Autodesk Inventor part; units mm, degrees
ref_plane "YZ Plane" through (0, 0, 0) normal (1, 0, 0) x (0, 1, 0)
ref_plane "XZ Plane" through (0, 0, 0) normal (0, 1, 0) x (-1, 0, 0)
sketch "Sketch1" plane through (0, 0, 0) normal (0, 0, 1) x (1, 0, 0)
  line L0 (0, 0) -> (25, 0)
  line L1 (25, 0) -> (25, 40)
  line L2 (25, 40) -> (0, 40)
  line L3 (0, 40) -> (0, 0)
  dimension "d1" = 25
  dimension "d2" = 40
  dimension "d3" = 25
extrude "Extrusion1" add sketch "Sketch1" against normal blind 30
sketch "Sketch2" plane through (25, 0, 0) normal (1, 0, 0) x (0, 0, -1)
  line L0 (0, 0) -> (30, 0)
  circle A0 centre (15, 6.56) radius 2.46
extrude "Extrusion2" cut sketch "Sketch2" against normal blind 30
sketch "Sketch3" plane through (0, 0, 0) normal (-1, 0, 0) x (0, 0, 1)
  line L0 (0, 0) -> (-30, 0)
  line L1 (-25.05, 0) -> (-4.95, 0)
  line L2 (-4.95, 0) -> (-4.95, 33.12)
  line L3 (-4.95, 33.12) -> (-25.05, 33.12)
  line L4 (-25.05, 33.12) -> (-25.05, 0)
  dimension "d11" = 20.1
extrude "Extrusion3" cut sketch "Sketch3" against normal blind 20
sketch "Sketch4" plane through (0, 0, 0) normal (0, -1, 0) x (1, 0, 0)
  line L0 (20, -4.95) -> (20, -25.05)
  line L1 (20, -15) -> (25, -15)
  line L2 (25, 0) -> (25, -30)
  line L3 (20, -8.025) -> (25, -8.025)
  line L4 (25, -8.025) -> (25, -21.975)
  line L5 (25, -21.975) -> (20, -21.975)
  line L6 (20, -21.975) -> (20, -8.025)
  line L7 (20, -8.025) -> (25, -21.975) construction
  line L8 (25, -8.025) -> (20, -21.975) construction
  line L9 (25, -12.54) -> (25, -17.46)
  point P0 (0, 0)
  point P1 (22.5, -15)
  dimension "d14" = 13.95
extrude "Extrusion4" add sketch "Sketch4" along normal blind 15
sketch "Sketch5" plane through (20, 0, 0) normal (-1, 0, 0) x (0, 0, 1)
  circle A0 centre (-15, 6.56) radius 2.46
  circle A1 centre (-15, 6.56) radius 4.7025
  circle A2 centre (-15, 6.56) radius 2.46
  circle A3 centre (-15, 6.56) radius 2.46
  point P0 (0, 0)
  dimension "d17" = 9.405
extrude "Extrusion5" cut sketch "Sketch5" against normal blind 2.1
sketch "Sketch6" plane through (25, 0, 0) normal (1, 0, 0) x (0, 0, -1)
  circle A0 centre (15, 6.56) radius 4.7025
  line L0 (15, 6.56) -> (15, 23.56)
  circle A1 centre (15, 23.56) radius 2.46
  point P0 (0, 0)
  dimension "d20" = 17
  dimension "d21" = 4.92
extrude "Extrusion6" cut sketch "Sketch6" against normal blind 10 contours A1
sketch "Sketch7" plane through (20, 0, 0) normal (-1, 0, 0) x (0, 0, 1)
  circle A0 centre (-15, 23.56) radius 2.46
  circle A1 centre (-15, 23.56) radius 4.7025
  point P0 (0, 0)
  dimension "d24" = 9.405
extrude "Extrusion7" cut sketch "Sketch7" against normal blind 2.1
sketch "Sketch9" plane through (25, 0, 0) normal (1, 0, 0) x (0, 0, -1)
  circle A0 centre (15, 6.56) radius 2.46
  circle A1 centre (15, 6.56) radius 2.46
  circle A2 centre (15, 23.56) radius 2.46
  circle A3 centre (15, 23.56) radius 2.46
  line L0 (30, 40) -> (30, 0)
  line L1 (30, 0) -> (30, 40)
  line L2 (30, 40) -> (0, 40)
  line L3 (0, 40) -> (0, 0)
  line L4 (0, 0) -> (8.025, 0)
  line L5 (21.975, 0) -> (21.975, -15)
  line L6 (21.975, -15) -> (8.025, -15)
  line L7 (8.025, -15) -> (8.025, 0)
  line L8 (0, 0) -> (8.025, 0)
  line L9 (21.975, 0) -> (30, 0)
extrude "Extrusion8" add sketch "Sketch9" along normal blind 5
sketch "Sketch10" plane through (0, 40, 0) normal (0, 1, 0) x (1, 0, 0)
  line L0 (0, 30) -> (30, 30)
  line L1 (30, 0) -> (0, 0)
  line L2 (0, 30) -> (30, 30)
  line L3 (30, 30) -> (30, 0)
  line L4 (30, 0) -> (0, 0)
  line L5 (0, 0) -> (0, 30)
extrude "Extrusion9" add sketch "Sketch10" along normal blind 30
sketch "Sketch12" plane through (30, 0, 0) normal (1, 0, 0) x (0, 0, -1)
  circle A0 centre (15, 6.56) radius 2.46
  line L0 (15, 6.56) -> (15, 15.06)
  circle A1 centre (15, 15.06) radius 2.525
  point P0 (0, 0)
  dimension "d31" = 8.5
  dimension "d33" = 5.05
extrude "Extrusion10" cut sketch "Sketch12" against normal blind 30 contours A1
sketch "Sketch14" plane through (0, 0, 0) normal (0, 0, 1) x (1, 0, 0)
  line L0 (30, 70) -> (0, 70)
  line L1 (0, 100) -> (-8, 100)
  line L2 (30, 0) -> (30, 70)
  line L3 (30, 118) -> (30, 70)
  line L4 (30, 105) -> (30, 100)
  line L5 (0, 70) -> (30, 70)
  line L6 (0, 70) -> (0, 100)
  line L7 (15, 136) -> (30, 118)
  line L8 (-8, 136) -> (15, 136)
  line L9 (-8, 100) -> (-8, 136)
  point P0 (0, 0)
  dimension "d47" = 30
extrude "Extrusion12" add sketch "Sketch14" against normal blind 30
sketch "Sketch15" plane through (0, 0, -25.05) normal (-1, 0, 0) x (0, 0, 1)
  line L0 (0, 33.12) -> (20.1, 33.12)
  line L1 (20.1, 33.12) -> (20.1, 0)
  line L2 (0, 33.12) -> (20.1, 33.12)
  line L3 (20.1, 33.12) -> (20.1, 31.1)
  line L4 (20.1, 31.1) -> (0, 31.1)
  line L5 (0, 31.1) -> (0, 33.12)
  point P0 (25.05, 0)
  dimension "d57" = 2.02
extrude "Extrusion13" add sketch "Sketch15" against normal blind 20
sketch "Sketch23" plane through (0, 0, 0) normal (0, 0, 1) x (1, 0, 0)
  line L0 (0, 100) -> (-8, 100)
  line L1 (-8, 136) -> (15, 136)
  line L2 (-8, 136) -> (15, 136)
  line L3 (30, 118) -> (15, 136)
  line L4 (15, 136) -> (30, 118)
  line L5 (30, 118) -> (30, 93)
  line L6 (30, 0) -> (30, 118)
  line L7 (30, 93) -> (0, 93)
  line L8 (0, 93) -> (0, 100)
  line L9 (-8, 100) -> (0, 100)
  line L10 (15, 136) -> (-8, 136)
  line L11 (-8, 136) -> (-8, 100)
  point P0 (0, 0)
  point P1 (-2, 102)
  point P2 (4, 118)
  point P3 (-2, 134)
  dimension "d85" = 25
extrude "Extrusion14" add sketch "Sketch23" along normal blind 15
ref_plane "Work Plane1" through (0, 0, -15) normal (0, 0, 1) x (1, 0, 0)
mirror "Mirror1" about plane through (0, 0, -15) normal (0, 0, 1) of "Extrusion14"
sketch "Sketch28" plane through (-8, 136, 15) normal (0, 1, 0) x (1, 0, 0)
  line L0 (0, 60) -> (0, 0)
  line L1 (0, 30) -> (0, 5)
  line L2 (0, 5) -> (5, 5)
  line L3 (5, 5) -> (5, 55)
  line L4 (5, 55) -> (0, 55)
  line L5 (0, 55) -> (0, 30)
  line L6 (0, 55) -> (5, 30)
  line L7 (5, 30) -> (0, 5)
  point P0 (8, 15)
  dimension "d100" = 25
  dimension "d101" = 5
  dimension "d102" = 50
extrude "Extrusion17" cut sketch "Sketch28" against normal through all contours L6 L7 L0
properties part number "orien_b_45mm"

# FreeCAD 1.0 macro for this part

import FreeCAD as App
import Part
import Sketcher

V = App.Vector
Q = App.Units.Quantity

doc = App.newDocument("Part")
body = doc.addObject("PartDesign::Body", "Body")

# Sketch on XY plane
sketch1 = body.newObject("Sketcher::SketchObject", "Sketch")
sketch1.AttachmentSupport = (doc.getObject("XY_Plane"), [""])
sketch1.MapMode = "FlatFace"
sketch1.addGeometry(Part.LineSegment(V(0, 40, 0), V(0, 0, 0)), False)
sketch1.addGeometry(Part.LineSegment(V(0, 0, 0), V(25, 0, 0)), False)
sketch1.addGeometry(Part.LineSegment(V(25, 0, 0), V(25, 40, 0)), False)
sketch1.addGeometry(Part.LineSegment(V(25, 40, 0), V(0, 40, 0)), False)
sketch1.addConstraint(Sketcher.Constraint("Coincident", 0, 2, 1, 1))
sketch1.addConstraint(Sketcher.Constraint("Coincident", 1, 2, 2, 1))
sketch1.addConstraint(Sketcher.Constraint("Coincident", 2, 2, 3, 1))
sketch1.addConstraint(Sketcher.Constraint("Coincident", 3, 2, 0, 1))
sketch1.addConstraint(Sketcher.Constraint("Vertical", 0))
sketch1.addConstraint(Sketcher.Constraint("Horizontal", 1))
sketch1.addConstraint(Sketcher.Constraint("Vertical", 2))
sketch1.addConstraint(Sketcher.Constraint("Horizontal", 3))
sketch1.addConstraint(Sketcher.Constraint("Coincident", 0, 2, -1, 1))
sketch1.addConstraint(Sketcher.Constraint("DistanceX", 1, 1, 1, 2, Q("25 mm")))
sketch1.addConstraint(Sketcher.Constraint("DistanceY", 0, 2, 0, 1, Q("40 mm")))
pad1 = body.newObject("PartDesign::Pad", "Pad")
pad1.Profile = sketch1
pad1.Length = 30
pad1.Reversed = True

# Sketch on YZ plane
sketch2 = body.newObject("Sketcher::SketchObject", "Sketch001")
sketch2.AttachmentSupport = (doc.getObject("YZ_Plane"), [""])
sketch2.MapMode = "FlatFace"
sketch2.AttachmentOffset = App.Placement(V(0, 0, 25), App.Rotation())
sketch2.addGeometry(Part.Circle(V(6.6, -15, 0), V(0, 0, 1), 2.5), False)
sketch2.addConstraint(Sketcher.Constraint("Diameter", 0, Q("4.92 mm")))
sketch2.addConstraint(Sketcher.Constraint("DistanceY", 0, 3, -1, 1, Q("15 mm")))
sketch2.addConstraint(Sketcher.Constraint("DistanceX", -1, 1, 0, 3, Q("6.56 mm")))
pocket1 = body.newObject("PartDesign::Pocket", "Pocket")
pocket1.Profile = sketch2
pocket1.Length = 30

# Sketch on YZ plane
sketch3 = body.newObject("Sketcher::SketchObject", "Sketch002")
sketch3.AttachmentSupport = (doc.getObject("YZ_Plane"), [""])
sketch3.MapMode = "FlatFace"
sketch3.addGeometry(Part.LineSegment(V(0, -25, 0), V(0, -5, 0)), False)
sketch3.addGeometry(Part.LineSegment(V(0, -5, 0), V(33, -5, 0)), False)
sketch3.addGeometry(Part.LineSegment(V(33, -5, 0), V(33, -25, 0)), False)
sketch3.addGeometry(Part.LineSegment(V(33, -25, 0), V(0, -25, 0)), False)
sketch3.addConstraint(Sketcher.Constraint("Coincident", 0, 2, 1, 1))
sketch3.addConstraint(Sketcher.Constraint("Coincident", 1, 2, 2, 1))
sketch3.addConstraint(Sketcher.Constraint("Coincident", 2, 2, 3, 1))
sketch3.addConstraint(Sketcher.Constraint("Coincident", 3, 2, 0, 1))
sketch3.addConstraint(Sketcher.Constraint("Vertical", 0))
sketch3.addConstraint(Sketcher.Constraint("Horizontal", 1))
sketch3.addConstraint(Sketcher.Constraint("Vertical", 2))
sketch3.addConstraint(Sketcher.Constraint("Horizontal", 3))
sketch3.addConstraint(Sketcher.Constraint("PointOnObject", 0, 2, -2))
sketch3.addConstraint(Sketcher.Constraint("DistanceY", 0, 1, 0, 2, Q("20.1 mm")))
sketch3.addConstraint(Sketcher.Constraint("DistanceX", 1, 1, 1, 2, Q("33.12 mm")))
sketch3.addConstraint(Sketcher.Constraint("DistanceY", 0, 2, -1, 1, Q("4.95 mm")))
pocket2 = body.newObject("PartDesign::Pocket", "Pocket001")
pocket2.Profile = sketch3
pocket2.Length = 20
pocket2.Reversed = True

# Sketch on XZ plane
sketch4 = body.newObject("Sketcher::SketchObject", "Sketch003")
sketch4.AttachmentSupport = (doc.getObject("XZ_Plane"), [""])
sketch4.MapMode = "FlatFace"
sketch4.addGeometry(Part.LineSegment(V(25, -8, 0), V(20, -8, 0)), False)
sketch4.addGeometry(Part.LineSegment(V(20, -8, 0), V(20, -22, 0)), False)
sketch4.addGeometry(Part.LineSegment(V(20, -22, 0), V(25, -22, 0)), False)
sketch4.addGeometry(Part.LineSegment(V(25, -22, 0), V(25, -8, 0)), False)
sketch4.addConstraint(Sketcher.Constraint("Coincident", 0, 2, 1, 1))
sketch4.addConstraint(Sketcher.Constraint("Coincident", 1, 2, 2, 1))
sketch4.addConstraint(Sketcher.Constraint("Coincident", 2, 2, 3, 1))
sketch4.addConstraint(Sketcher.Constraint("Coincident", 3, 2, 0, 1))
sketch4.addConstraint(Sketcher.Constraint("Horizontal", 0))
sketch4.addConstraint(Sketcher.Constraint("Vertical", 1))
sketch4.addConstraint(Sketcher.Constraint("Horizontal", 2))
sketch4.addConstraint(Sketcher.Constraint("Vertical", 3))
sketch4.addConstraint(Sketcher.Constraint("DistanceY", 1, 2, 1, 1, Q("13.95 mm")))
sketch4.addConstraint(Sketcher.Constraint("DistanceX", 0, 2, 0, 1, Q("5 mm")))
sketch4.addConstraint(Sketcher.Constraint("DistanceX", -1, 1, 0, 2, Q("20 mm")))
sketch4.addConstraint(Sketcher.Constraint("DistanceY", 0, 2, -1, 1, Q("8.025 mm")))
pad2 = body.newObject("PartDesign::Pad", "Pad001")
pad2.Profile = sketch4
pad2.Length = 15

# Sketch on YZ plane
sketch5 = body.newObject("Sketcher::SketchObject", "Sketch004")
sketch5.AttachmentSupport = (doc.getObject("YZ_Plane"), [""])
sketch5.MapMode = "FlatFace"
sketch5.AttachmentOffset = App.Placement(V(0, 0, 20), App.Rotation())
sketch5.addGeometry(Part.Circle(V(6.6, -15, 0), V(0, 0, 1), 4.7), False)
sketch5.addGeometry(Part.Circle(V(6.6, -15, 0), V(0, 0, 1), 2.5), False)
sketch5.addConstraint(Sketcher.Constraint("Coincident", 1, 3, 0, 3))
sketch5.addConstraint(Sketcher.Constraint("Diameter", 0, Q("9.405 mm")))
sketch5.addConstraint(Sketcher.Constraint("Diameter", 1, Q("4.92 mm")))
sketch5.addConstraint(Sketcher.Constraint("DistanceY", 0, 3, -1, 1, Q("15 mm")))
sketch5.addConstraint(Sketcher.Constraint("DistanceX", -1, 1, 0, 3, Q("6.56 mm")))
pocket3 = body.newObject("PartDesign::Pocket", "Pocket002")
pocket3.Profile = sketch5
pocket3.Length = 2.1
pocket3.Reversed = True

# Sketch on YZ plane
sketch6 = body.newObject("Sketcher::SketchObject", "Sketch005")
sketch6.AttachmentSupport = (doc.getObject("YZ_Plane"), [""])
sketch6.MapMode = "FlatFace"
sketch6.AttachmentOffset = App.Placement(V(0, 0, 25), App.Rotation())
sketch6.addGeometry(Part.Circle(V(23.6, -15, 0), V(0, 0, 1), 2.5), False)
sketch6.addConstraint(Sketcher.Constraint("Diameter", 0, Q("4.92 mm")))
sketch6.addConstraint(Sketcher.Constraint("DistanceY", 0, 3, -1, 1, Q("15 mm")))
sketch6.addConstraint(Sketcher.Constraint("DistanceX", -1, 1, 0, 3, Q("23.56 mm")))
pocket4 = body.newObject("PartDesign::Pocket", "Pocket003")
pocket4.Profile = sketch6
pocket4.Length = 10

# Sketch on YZ plane
sketch7 = body.newObject("Sketcher::SketchObject", "Sketch006")
sketch7.AttachmentSupport = (doc.getObject("YZ_Plane"), [""])
sketch7.MapMode = "FlatFace"
sketch7.AttachmentOffset = App.Placement(V(0, 0, 20), App.Rotation())
sketch7.addGeometry(Part.Circle(V(23.6, -15, 0), V(0, 0, 1), 4.7), False)
sketch7.addGeometry(Part.Circle(V(23.6, -15, 0), V(0, 0, 1), 2.5), False)
sketch7.addConstraint(Sketcher.Constraint("Coincident", 1, 3, 0, 3))
sketch7.addConstraint(Sketcher.Constraint("Diameter", 0, Q("9.405 mm")))
sketch7.addConstraint(Sketcher.Constraint("Diameter", 1, Q("4.92 mm")))
sketch7.addConstraint(Sketcher.Constraint("DistanceY", 0, 3, -1, 1, Q("15 mm")))
sketch7.addConstraint(Sketcher.Constraint("DistanceX", -1, 1, 0, 3, Q("23.56 mm")))
pocket5 = body.newObject("PartDesign::Pocket", "Pocket004")
pocket5.Profile = sketch7
pocket5.Length = 2.1
pocket5.Reversed = True

# Sketch on YZ plane
sketch8 = body.newObject("Sketcher::SketchObject", "Sketch007")
sketch8.AttachmentSupport = (doc.getObject("YZ_Plane"), [""])
sketch8.MapMode = "FlatFace"
sketch8.AttachmentOffset = App.Placement(V(0, 0, 25), App.Rotation())
sketch8.addGeometry(Part.LineSegment(V(0, -30, 0), V(40, -30, 0)), False)
sketch8.addGeometry(Part.LineSegment(V(40, -30, 0), V(40, 0, 0)), False)
sketch8.addGeometry(Part.LineSegment(V(40, 0, 0), V(0, 0, 0)), False)
sketch8.addGeometry(Part.LineSegment(V(0, 0, 0), V(0, -8, 0)), False)
sketch8.addGeometry(Part.LineSegment(V(0, -8, 0), V(-15, -8, 0)), False)
sketch8.addGeometry(Part.LineSegment(V(-15, -8, 0), V(-15, -22, 0)), False)
sketch8.addGeometry(Part.LineSegment(V(-15, -22, 0), V(0, -22, 0)), False)
sketch8.addGeometry(Part.LineSegment(V(0, -22, 0), V(0, -30, 0)), False)
sketch8.addGeometry(Part.Circle(V(6.6, -15, 0), V(0, 0, 1), 2.5), False)
sketch8.addGeometry(Part.Circle(V(23.6, -15, 0), V(0, 0, 1), 2.5), False)
sketch8.addConstraint(Sketcher.Constraint("Coincident", 0, 2, 1, 1))
sketch8.addConstraint(Sketcher.Constraint("Coincident", 1, 2, 2, 1))
sketch8.addConstraint(Sketcher.Constraint("Coincident", 2, 2, 3, 1))
sketch8.addConstraint(Sketcher.Constraint("Coincident", 3, 2, 4, 1))
sketch8.addConstraint(Sketcher.Constraint("Coincident", 4, 2, 5, 1))
sketch8.addConstraint(Sketcher.Constraint("Coincident", 5, 2, 6, 1))
sketch8.addConstraint(Sketcher.Constraint("Coincident", 6, 2, 7, 1))
sketch8.addConstraint(Sketcher.Constraint("Coincident", 7, 2, 0, 1))
sketch8.addConstraint(Sketcher.Constraint("Horizontal", 0))
sketch8.addConstraint(Sketcher.Constraint("Vertical", 1))
sketch8.addConstraint(Sketcher.Constraint("Horizontal", 2))
sketch8.addConstraint(Sketcher.Constraint("Vertical", 3))
sketch8.addConstraint(Sketcher.Constraint("Horizontal", 4))
sketch8.addConstraint(Sketcher.Constraint("Vertical", 5))
sketch8.addConstraint(Sketcher.Constraint("Horizontal", 6))
sketch8.addConstraint(Sketcher.Constraint("Vertical", 7))
sketch8.addConstraint(Sketcher.Constraint("Coincident", 2, 2, -1, 1))
sketch8.addConstraint(Sketcher.Constraint("Equal", 8, 9))
sketch8.addConstraint(Sketcher.Constraint("PointOnObject", 6, 2, -2))
sketch8.addConstraint(Sketcher.Constraint("Horizontal", 8, 3, 9, 3))
sketch8.addConstraint(Sketcher.Constraint("Equal", 3, 7))
sketch8.addConstraint(Sketcher.Constraint("Diameter", 8, Q("4.92 mm")))
sketch8.addConstraint(Sketcher.Constraint("DistanceX", 0, 1, 0, 2, Q("40 mm")))
sketch8.addConstraint(Sketcher.Constraint("DistanceX", 4, 2, 4, 1, Q("15 mm")))
sketch8.addConstraint(Sketcher.Constraint("DistanceY", 1, 1, 1, 2, Q("30 mm")))
sketch8.addConstraint(Sketcher.Constraint("DistanceY", 8, 3, -1, 1, Q("15 mm")))
sketch8.addConstraint(Sketcher.Constraint("DistanceX", 8, 3, 9, 3, Q("17 mm")))
sketch8.addConstraint(Sketcher.Constraint("DistanceY", 5, 2, 5, 1, Q("13.95 mm")))
sketch8.addConstraint(Sketcher.Constraint("DistanceX", -1, 1, 8, 3, Q("6.56 mm")))
pad3 = body.newObject("PartDesign::Pad", "Pad002")
pad3.Profile = sketch8
pad3.Length = 5

# Sketch on XZ plane
sketch9 = body.newObject("Sketcher::SketchObject", "Sketch008")
sketch9.AttachmentSupport = (doc.getObject("XZ_Plane"), [""])
sketch9.MapMode = "FlatFace"
sketch9.AttachmentOffset = App.Placement(V(0, 0, -40), App.Rotation())
sketch9.addGeometry(Part.LineSegment(V(30, -30, 0), V(0, -30, 0)), False)
sketch9.addGeometry(Part.LineSegment(V(0, -30, 0), V(0, 0, 0)), False)
sketch9.addGeometry(Part.LineSegment(V(0, 0, 0), V(30, 0, 0)), False)
sketch9.addGeometry(Part.LineSegment(V(30, 0, 0), V(30, -30, 0)), False)
sketch9.addConstraint(Sketcher.Constraint("Coincident", 0, 2, 1, 1))
sketch9.addConstraint(Sketcher.Constraint("Coincident", 1, 2, 2, 1))
sketch9.addConstraint(Sketcher.Constraint("Coincident", 2, 2, 3, 1))
sketch9.addConstraint(Sketcher.Constraint("Coincident", 3, 2, 0, 1))
sketch9.addConstraint(Sketcher.Constraint("Horizontal", 0))
sketch9.addConstraint(Sketcher.Constraint("Vertical", 1))
sketch9.addConstraint(Sketcher.Constraint("Horizontal", 2))
sketch9.addConstraint(Sketcher.Constraint("Vertical", 3))
sketch9.addConstraint(Sketcher.Constraint("Coincident", 1, 2, -1, 1))
sketch9.addConstraint(Sketcher.Constraint("Equal", 2, 1))
sketch9.addConstraint(Sketcher.Constraint("DistanceX", 0, 2, 0, 1, Q("30 mm")))
pad4 = body.newObject("PartDesign::Pad", "Pad003")
pad4.Profile = sketch9
pad4.Length = 30
pad4.Reversed = True

# Sketch on YZ plane
sketch10 = body.newObject("Sketcher::SketchObject", "Sketch009")
sketch10.AttachmentSupport = (doc.getObject("YZ_Plane"), [""])
sketch10.MapMode = "FlatFace"
sketch10.AttachmentOffset = App.Placement(V(0, 0, 30), App.Rotation())
sketch10.addGeometry(Part.Circle(V(15.1, -15, 0), V(0, 0, 1), 2.5), False)
sketch10.addConstraint(Sketcher.Constraint("Diameter", 0, Q("5.05 mm")))
sketch10.addConstraint(Sketcher.Constraint("DistanceY", 0, 3, -1, 1, Q("15 mm")))
sketch10.addConstraint(Sketcher.Constraint("DistanceX", -1, 1, 0, 3, Q("15.06 mm")))
pocket6 = body.newObject("PartDesign::Pocket", "Pocket005")
pocket6.Profile = sketch10
pocket6.Length = 30

# Sketch on XY plane
sketch11 = body.newObject("Sketcher::SketchObject", "Sketch010")
sketch11.AttachmentSupport = (doc.getObject("XY_Plane"), [""])
sketch11.MapMode = "FlatFace"
sketch11.addGeometry(Part.LineSegment(V(0, 70, 0), V(30, 70, 0)), False)
sketch11.addGeometry(Part.LineSegment(V(30, 70, 0), V(30, 118, 0)), False)
sketch11.addGeometry(Part.LineSegment(V(30, 118, 0), V(15, 136, 0)), False)
sketch11.addGeometry(Part.LineSegment(V(15, 136, 0), V(-8, 136, 0)), False)
sketch11.addGeometry(Part.LineSegment(V(-8, 136, 0), V(-8, 100, 0)), False)
sketch11.addGeometry(Part.LineSegment(V(-8, 100, 0), V(0, 100, 0)), False)
sketch11.addGeometry(Part.LineSegment(V(0, 100, 0), V(0, 70, 0)), False)
sketch11.addConstraint(Sketcher.Constraint("Coincident", 0, 2, 1, 1))
sketch11.addConstraint(Sketcher.Constraint("Coincident", 1, 2, 2, 1))
sketch11.addConstraint(Sketcher.Constraint("Coincident", 2, 2, 3, 1))
sketch11.addConstraint(Sketcher.Constraint("Coincident", 3, 2, 4, 1))
sketch11.addConstraint(Sketcher.Constraint("Coincident", 4, 2, 5, 1))
sketch11.addConstraint(Sketcher.Constraint("Coincident", 5, 2, 6, 1))
sketch11.addConstraint(Sketcher.Constraint("Coincident", 6, 2, 0, 1))
sketch11.addConstraint(Sketcher.Constraint("Horizontal", 0))
sketch11.addConstraint(Sketcher.Constraint("Vertical", 1))
sketch11.addConstraint(Sketcher.Constraint("Horizontal", 3))
sketch11.addConstraint(Sketcher.Constraint("Vertical", 4))
sketch11.addConstraint(Sketcher.Constraint("Horizontal", 5))
sketch11.addConstraint(Sketcher.Constraint("Vertical", 6))
sketch11.addConstraint(Sketcher.Constraint("PointOnObject", 5, 2, -2))
sketch11.addConstraint(Sketcher.Constraint("Equal", 0, 6))
sketch11.addConstraint(Sketcher.Constraint("DistanceX", 0, 1, 0, 2, Q("30 mm")))
sketch11.addConstraint(Sketcher.Constraint("DistanceX", 3, 2, 3, 1, Q("23 mm")))
sketch11.addConstraint(Sketcher.Constraint("DistanceX", 5, 1, 5, 2, Q("8 mm")))
sketch11.addConstraint(Sketcher.Constraint("DistanceY", 1, 1, 1, 2, Q("48 mm")))
sketch11.addConstraint(Sketcher.Constraint("DistanceY", 4, 2, 4, 1, Q("36 mm")))
sketch11.addConstraint(Sketcher.Constraint("DistanceY", -1, 1, 0, 2, Q("70 mm")))
pad5 = body.newObject("PartDesign::Pad", "Pad004")
pad5.Profile = sketch11
pad5.Length = 30
pad5.Reversed = True

# Sketch on YZ plane
sketch12 = body.newObject("Sketcher::SketchObject", "Sketch011")
sketch12.AttachmentSupport = (doc.getObject("YZ_Plane"), [""])
sketch12.MapMode = "FlatFace"
sketch12.addGeometry(Part.LineSegment(V(33.1, -5, 0), V(33.1, -25.1, 0)), False)
sketch12.addGeometry(Part.LineSegment(V(33.1, -25.1, 0), V(31.1, -25.1, 0)), False)
sketch12.addGeometry(Part.LineSegment(V(31.1, -25.1, 0), V(31.1, -5, 0)), False)
sketch12.addGeometry(Part.LineSegment(V(31.1, -5, 0), V(33.1, -5, 0)), False)
sketch12.addConstraint(Sketcher.Constraint("Coincident", 0, 2, 1, 1))
sketch12.addConstraint(Sketcher.Constraint("Coincident", 1, 2, 2, 1))
sketch12.addConstraint(Sketcher.Constraint("Coincident", 2, 2, 3, 1))
sketch12.addConstraint(Sketcher.Constraint("Coincident", 3, 2, 0, 1))
sketch12.addConstraint(Sketcher.Constraint("Vertical", 0))
sketch12.addConstraint(Sketcher.Constraint("Horizontal", 1))
sketch12.addConstraint(Sketcher.Constraint("Vertical", 2))
sketch12.addConstraint(Sketcher.Constraint("Horizontal", 3))
sketch12.addConstraint(Sketcher.Constraint("DistanceX", 1, 2, 1, 1, Q("2.02 mm")))
sketch12.addConstraint(Sketcher.Constraint("DistanceY", 0, 2, 0, 1, Q("20.1 mm")))
sketch12.addConstraint(Sketcher.Constraint("DistanceX", -1, 1, 1, 2, Q("31.1 mm")))
sketch12.addConstraint(Sketcher.Constraint("DistanceY", 0, 2, -1, 1, Q("25.05 mm")))
pad6 = body.newObject("PartDesign::Pad", "Pad005")
pad6.Profile = sketch12
pad6.Length = 20

# Sketch on XY plane
sketch13 = body.newObject("Sketcher::SketchObject", "Sketch012")
sketch13.AttachmentSupport = (doc.getObject("XY_Plane"), [""])
sketch13.MapMode = "FlatFace"
sketch13.addGeometry(Part.LineSegment(V(-8, 100, 0), V(0, 100, 0)), False)
sketch13.addGeometry(Part.LineSegment(V(0, 100, 0), V(0, 93, 0)), False)
sketch13.addGeometry(Part.LineSegment(V(0, 93, 0), V(30, 93, 0)), False)
sketch13.addGeometry(Part.LineSegment(V(30, 93, 0), V(30, 118, 0)), False)
sketch13.addGeometry(Part.LineSegment(V(30, 118, 0), V(15, 136, 0)), False)
sketch13.addGeometry(Part.LineSegment(V(15, 136, 0), V(-8, 136, 0)), False)
sketch13.addGeometry(Part.LineSegment(V(-8, 136, 0), V(-8, 100, 0)), False)
sketch13.addConstraint(Sketcher.Constraint("Coincident", 0, 2, 1, 1))
sketch13.addConstraint(Sketcher.Constraint("Coincident", 1, 2, 2, 1))
sketch13.addConstraint(Sketcher.Constraint("Coincident", 2, 2, 3, 1))
sketch13.addConstraint(Sketcher.Constraint("Coincident", 3, 2, 4, 1))
sketch13.addConstraint(Sketcher.Constraint("Coincident", 4, 2, 5, 1))
sketch13.addConstraint(Sketcher.Constraint("Coincident", 5, 2, 6, 1))
sketch13.addConstraint(Sketcher.Constraint("Coincident", 6, 2, 0, 1))
sketch13.addConstraint(Sketcher.Constraint("Horizontal", 0))
sketch13.addConstraint(Sketcher.Constraint("Vertical", 1))
sketch13.addConstraint(Sketcher.Constraint("Horizontal", 2))
sketch13.addConstraint(Sketcher.Constraint("Vertical", 3))
sketch13.addConstraint(Sketcher.Constraint("Horizontal", 5))
sketch13.addConstraint(Sketcher.Constraint("Vertical", 6))
sketch13.addConstraint(Sketcher.Constraint("PointOnObject", 0, 2, -2))
sketch13.addConstraint(Sketcher.Constraint("DistanceY", 3, 1, 3, 2, Q("25 mm")))
sketch13.addConstraint(Sketcher.Constraint("DistanceX", 0, 1, 0, 2, Q("8 mm")))
sketch13.addConstraint(Sketcher.Constraint("DistanceX", 2, 1, 2, 2, Q("30 mm")))
sketch13.addConstraint(Sketcher.Constraint("DistanceX", 5, 2, 5, 1, Q("23 mm")))
sketch13.addConstraint(Sketcher.Constraint("DistanceY", 1, 2, 1, 1, Q("7 mm")))
sketch13.addConstraint(Sketcher.Constraint("DistanceY", 6, 2, 6, 1, Q("36 mm")))
sketch13.addConstraint(Sketcher.Constraint("DistanceY", -1, 1, 0, 2, Q("100 mm")))
pad7 = body.newObject("PartDesign::Pad", "Pad006")
pad7.Profile = sketch13
pad7.Length = 15
doc.recompute()

datumplane = body.newObject("PartDesign::Plane", "DatumPlane")
datumplane.AttachmentSupport = (doc.getObject("XY_Plane"), [""])
datumplane.MapMode = "FlatFace"
datumplane.AttachmentOffset = App.Placement(V(0, 0, -15), App.Rotation())
mirrored = body.newObject("PartDesign::Mirrored", "Mirrored")
mirrored.Originals = [pad7]
mirrored.MirrorPlane = (datumplane, [""])
body.Tip = mirrored

# Sketch on XZ plane
sketch14 = body.newObject("Sketcher::SketchObject", "Sketch013")
sketch14.AttachmentSupport = (doc.getObject("XZ_Plane"), [""])
sketch14.MapMode = "FlatFace"
sketch14.AttachmentOffset = App.Placement(V(0, 0, -136), App.Rotation())
sketch14.addGeometry(Part.LineSegment(V(-3, -15, 0), V(-8, -40, 0)), False)
sketch14.addGeometry(Part.LineSegment(V(-8, -40, 0), V(-8, 10, 0)), False)
sketch14.addGeometry(Part.LineSegment(V(-8, 10, 0), V(-3, -15, 0)), False)
sketch14.addConstraint(Sketcher.Constraint("Coincident", 0, 2, 1, 1))
sketch14.addConstraint(Sketcher.Constraint("Coincident", 1, 2, 2, 1))
sketch14.addConstraint(Sketcher.Constraint("Coincident", 2, 2, 0, 1))
sketch14.addConstraint(Sketcher.Constraint("Vertical", 1))
sketch14.addConstraint(Sketcher.Constraint("Equal", 0, 2))
sketch14.addConstraint(Sketcher.Constraint("DistanceY", 1, 1, 1, 2, Q("50 mm")))
sketch14.addConstraint(Sketcher.Constraint("DistanceX", 0, 2, 2, 2, Q("5 mm")))
sketch14.addConstraint(Sketcher.Constraint("DistanceX", 0, 2, -1, 1, Q("8 mm")))
sketch14.addConstraint(Sketcher.Constraint("DistanceY", 0, 2, -1, 1, Q("40 mm")))
pocket7 = body.newObject("PartDesign::Pocket", "Pocket006")
pocket7.Profile = sketch14
pocket7.Type = "ThroughAll"
pocket7.Reversed = True

doc.recompute()
